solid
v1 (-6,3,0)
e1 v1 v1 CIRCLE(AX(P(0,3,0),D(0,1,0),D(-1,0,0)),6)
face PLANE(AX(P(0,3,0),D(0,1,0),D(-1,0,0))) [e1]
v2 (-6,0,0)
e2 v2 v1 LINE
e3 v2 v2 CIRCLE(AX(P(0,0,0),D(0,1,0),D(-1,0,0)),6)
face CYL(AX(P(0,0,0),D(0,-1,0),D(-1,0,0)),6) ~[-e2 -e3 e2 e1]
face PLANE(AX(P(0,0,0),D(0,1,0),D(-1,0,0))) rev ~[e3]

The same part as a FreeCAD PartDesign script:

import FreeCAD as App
import Part
import Sketcher
from FreeCAD import Vector

doc = App.newDocument("Part")
body = doc.addObject("PartDesign::Body", "Body")

# Sketch on XZ plane
sketch1 = body.newObject("Sketcher::SketchObject", "Sketch")
sketch1.AttachmentSupport = (doc.getObject("XZ_Plane"), [""])
sketch1.MapMode = "FlatFace"
sketch1.addGeometry(Part.Circle(Vector(0, 0, 0), Vector(0, 0, 1), 6), False)
sketch1.addConstraint([
    Sketcher.Constraint("Coincident", 0, 3, -1, 1),
    Sketcher.Constraint("Diameter", 0, 12.0),
])
pad1 = body.newObject("PartDesign::Pad", "Pad")
pad1.Profile = sketch1
pad1.Length = 3
pad1.Reversed = True

doc.recompute()
